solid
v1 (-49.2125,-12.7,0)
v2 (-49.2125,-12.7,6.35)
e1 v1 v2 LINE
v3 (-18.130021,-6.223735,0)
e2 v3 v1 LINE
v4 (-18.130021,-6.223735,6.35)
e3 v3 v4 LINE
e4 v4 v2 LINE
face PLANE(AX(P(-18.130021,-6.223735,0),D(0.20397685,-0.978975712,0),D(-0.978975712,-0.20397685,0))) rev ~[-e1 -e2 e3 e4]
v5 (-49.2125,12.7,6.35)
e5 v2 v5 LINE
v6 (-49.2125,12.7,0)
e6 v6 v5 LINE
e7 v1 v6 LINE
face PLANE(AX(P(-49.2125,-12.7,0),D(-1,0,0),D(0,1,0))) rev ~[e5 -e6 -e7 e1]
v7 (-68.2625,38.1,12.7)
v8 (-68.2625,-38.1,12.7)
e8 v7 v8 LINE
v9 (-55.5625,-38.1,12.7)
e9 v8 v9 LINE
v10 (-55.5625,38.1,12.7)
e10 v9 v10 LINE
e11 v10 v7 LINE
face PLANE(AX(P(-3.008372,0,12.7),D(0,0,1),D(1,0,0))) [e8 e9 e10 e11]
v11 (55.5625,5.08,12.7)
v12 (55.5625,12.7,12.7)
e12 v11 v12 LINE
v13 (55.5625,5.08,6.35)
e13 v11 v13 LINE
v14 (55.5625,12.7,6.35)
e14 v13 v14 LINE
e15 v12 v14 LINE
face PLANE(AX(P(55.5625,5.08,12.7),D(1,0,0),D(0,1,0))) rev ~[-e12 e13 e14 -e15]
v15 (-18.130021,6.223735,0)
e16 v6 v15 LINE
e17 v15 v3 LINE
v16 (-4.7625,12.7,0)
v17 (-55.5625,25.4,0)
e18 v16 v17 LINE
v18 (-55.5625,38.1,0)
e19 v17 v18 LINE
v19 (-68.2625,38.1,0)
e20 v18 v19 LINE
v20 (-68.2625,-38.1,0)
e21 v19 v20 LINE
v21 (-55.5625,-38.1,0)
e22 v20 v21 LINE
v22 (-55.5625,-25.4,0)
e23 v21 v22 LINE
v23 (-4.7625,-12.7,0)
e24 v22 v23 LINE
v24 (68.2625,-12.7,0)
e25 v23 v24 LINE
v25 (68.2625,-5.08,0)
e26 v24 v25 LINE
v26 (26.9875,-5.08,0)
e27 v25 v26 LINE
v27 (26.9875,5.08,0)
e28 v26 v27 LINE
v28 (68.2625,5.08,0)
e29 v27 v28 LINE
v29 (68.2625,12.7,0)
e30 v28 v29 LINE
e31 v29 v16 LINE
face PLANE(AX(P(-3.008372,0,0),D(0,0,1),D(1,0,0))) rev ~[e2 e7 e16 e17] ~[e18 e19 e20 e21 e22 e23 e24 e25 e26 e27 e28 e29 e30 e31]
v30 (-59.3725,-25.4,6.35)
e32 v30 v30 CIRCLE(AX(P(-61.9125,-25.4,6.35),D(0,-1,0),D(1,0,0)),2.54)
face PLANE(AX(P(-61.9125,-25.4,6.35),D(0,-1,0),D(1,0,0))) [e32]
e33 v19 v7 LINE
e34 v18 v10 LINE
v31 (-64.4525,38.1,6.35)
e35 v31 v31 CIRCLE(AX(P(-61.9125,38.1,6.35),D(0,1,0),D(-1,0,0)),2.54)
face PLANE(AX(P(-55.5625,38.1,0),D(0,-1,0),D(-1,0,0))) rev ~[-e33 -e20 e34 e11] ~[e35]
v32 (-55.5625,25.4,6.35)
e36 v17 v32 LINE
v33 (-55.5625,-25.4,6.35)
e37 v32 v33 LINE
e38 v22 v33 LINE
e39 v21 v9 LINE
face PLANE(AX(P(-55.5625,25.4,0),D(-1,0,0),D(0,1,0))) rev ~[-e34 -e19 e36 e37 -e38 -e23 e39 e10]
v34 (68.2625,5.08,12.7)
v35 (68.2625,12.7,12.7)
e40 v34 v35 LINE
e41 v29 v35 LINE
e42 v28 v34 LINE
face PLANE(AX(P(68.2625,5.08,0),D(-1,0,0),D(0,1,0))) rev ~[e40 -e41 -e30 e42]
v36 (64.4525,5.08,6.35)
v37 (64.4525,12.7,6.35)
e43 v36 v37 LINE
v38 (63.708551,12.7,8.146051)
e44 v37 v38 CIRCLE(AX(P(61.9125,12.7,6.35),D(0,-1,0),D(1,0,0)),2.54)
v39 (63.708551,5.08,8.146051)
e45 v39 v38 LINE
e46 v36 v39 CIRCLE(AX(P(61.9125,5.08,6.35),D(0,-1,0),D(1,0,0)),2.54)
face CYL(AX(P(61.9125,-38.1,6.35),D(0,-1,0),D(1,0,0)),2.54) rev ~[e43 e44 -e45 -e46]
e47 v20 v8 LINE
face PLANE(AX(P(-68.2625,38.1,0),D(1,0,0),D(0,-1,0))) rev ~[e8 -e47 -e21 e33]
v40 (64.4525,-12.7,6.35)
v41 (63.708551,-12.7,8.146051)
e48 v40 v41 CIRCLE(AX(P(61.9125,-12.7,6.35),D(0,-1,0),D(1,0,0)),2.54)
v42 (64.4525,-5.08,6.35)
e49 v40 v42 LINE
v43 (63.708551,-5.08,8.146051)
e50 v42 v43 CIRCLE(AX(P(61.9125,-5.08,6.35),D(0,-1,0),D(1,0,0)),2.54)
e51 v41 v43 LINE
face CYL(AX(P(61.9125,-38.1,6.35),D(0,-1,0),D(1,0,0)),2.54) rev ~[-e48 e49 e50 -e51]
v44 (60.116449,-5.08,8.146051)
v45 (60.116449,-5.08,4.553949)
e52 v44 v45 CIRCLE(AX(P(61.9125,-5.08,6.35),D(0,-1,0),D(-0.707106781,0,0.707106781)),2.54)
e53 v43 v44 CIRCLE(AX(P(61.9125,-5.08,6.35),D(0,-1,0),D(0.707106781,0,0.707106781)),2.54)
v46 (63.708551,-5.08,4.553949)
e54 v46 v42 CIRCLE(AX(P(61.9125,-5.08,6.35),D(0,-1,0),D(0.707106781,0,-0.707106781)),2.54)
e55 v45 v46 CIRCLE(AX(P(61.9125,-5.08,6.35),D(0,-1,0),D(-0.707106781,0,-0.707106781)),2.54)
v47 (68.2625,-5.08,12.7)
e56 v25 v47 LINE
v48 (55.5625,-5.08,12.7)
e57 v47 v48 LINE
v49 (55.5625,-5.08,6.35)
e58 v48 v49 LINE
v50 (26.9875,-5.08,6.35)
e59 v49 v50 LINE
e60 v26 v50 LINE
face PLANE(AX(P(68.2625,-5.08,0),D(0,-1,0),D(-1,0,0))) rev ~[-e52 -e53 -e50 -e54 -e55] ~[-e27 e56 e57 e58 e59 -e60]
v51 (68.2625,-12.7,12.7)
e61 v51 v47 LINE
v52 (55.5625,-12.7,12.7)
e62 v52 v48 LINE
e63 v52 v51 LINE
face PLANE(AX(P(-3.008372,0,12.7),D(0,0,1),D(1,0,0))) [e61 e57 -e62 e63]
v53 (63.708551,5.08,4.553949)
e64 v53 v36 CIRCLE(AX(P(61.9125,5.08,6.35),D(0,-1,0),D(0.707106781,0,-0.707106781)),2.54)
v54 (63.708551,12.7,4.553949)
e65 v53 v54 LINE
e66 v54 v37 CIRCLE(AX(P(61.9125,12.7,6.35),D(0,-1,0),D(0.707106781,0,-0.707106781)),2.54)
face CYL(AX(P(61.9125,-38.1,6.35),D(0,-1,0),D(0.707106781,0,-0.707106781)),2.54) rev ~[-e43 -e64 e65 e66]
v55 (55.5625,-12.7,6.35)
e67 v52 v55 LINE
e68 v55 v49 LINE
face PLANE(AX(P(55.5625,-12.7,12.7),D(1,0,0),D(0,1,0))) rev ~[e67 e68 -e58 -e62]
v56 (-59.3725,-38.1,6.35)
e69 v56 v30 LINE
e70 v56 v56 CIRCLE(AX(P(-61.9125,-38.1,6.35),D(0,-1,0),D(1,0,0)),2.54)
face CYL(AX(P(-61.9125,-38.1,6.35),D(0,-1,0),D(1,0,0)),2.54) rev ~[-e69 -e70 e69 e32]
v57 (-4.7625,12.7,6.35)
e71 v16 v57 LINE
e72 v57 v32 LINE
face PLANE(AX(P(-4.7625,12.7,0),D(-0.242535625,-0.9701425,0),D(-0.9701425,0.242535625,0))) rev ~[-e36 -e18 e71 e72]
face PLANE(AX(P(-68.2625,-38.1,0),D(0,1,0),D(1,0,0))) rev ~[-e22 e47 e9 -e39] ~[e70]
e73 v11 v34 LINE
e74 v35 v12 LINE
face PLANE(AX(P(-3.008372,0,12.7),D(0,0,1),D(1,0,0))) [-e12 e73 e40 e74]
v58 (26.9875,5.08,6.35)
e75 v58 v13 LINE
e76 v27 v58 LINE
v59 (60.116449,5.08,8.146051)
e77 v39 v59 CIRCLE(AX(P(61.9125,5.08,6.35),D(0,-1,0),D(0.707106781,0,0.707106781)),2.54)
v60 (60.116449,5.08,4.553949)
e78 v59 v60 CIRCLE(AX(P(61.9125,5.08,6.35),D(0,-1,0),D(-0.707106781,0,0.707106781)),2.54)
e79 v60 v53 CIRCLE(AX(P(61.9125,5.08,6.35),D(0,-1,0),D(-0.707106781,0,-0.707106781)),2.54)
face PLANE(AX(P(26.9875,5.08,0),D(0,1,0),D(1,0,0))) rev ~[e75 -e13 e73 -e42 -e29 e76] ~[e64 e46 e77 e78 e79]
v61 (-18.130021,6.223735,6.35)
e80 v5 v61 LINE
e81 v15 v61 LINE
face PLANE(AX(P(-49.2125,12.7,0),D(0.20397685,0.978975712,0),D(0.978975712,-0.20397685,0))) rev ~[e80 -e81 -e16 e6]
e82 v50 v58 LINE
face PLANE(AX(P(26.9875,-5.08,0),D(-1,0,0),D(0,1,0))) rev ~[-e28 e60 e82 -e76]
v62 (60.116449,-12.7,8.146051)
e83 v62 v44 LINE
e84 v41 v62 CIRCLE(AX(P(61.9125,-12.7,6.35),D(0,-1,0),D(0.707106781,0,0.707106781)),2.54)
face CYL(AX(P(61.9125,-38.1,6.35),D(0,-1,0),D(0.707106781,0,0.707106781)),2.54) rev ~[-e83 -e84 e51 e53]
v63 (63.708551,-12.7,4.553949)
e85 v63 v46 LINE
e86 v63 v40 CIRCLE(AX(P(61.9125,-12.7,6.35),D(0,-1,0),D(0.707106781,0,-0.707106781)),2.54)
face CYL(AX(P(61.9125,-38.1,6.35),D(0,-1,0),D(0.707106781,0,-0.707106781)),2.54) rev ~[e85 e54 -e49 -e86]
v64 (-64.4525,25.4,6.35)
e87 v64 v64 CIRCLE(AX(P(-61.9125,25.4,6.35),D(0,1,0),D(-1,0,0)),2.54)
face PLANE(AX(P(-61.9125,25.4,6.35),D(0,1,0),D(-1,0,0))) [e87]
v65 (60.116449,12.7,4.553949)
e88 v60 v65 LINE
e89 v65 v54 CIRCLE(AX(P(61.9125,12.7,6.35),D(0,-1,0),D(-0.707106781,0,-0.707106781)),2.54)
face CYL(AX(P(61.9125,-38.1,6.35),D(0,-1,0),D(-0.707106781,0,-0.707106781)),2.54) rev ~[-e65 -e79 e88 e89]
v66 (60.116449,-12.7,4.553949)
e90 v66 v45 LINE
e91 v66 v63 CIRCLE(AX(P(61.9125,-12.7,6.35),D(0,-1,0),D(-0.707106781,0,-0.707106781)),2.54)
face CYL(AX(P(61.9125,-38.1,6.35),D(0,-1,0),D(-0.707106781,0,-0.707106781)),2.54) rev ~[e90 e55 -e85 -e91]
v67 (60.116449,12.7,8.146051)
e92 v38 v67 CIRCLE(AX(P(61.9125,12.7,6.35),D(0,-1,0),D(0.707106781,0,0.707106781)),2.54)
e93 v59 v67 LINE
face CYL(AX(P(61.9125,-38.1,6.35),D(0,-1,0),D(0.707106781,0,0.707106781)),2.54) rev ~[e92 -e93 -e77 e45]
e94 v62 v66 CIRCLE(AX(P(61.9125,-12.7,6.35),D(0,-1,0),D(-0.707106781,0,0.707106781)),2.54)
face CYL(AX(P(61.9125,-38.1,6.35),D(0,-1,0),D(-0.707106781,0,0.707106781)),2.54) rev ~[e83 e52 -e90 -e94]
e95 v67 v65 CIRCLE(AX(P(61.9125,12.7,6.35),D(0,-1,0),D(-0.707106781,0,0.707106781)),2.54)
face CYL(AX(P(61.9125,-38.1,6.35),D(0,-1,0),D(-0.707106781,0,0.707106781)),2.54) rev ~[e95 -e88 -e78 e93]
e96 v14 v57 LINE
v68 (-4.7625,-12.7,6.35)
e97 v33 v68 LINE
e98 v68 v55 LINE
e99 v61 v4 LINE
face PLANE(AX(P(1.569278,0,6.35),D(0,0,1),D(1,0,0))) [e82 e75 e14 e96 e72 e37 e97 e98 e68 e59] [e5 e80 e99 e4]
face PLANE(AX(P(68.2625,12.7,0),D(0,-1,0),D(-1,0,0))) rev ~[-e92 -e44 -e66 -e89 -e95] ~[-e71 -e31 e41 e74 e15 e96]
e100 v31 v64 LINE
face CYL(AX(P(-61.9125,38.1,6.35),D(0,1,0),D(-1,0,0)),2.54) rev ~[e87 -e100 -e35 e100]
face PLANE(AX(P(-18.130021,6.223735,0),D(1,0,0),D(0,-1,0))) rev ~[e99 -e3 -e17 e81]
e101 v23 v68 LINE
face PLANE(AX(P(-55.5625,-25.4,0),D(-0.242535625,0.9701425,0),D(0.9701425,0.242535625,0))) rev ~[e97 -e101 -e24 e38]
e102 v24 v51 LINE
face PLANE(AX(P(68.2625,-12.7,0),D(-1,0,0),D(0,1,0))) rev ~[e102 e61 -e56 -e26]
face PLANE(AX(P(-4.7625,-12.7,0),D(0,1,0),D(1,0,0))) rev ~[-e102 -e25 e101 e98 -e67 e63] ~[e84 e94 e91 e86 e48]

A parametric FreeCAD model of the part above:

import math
import FreeCAD as App
import Part
import Sketcher
from FreeCAD import Vector
Q = App.Units.Quantity


def add_polygon(sketch, points):
    """Adds a closed chain of lines whose ends are joined by coincident constraints."""
    first, n = sketch.GeometryCount, len(points)
    for a, b in zip(points, points[1:] + points[:1]):
        sketch.addGeometry(Part.LineSegment(App.Vector(*a, 0), App.Vector(*b, 0)), False)
    for i in range(n):
        sketch.addConstraint(Sketcher.Constraint("Coincident", first + i, 2, first + (i + 1) % n, 1))

doc = App.newDocument("Part")
body = doc.addObject("PartDesign::Body", "Body")

# Sketch on XY plane
sketch1 = body.newObject("Sketcher::SketchObject", "Sketch")
sketch1.AttachmentSupport = (doc.getObject("XY_Plane"), [""])
sketch1.MapMode = "FlatFace"
add_polygon(sketch1, [(-68, 38), (-68, -38), (-56, -38), (-56, -25), (-5, -13), (68, -13), (68, -5), (27, -5), (27, 5), (68, 5), (68, 13), (-5, 13), (-56, 25), (-56, 38)])  # lines 0-13
add_polygon(sketch1, [(-18, -6), (-49, -13), (-49, 13), (-18, 6)])  # lines 14-17
sketch1.addConstraint([
    Sketcher.Constraint("Vertical", 0),
    Sketcher.Constraint("Horizontal", 1),
    Sketcher.Constraint("Vertical", 2),
    Sketcher.Constraint("Horizontal", 4),
    Sketcher.Constraint("Vertical", 5),
    Sketcher.Constraint("Horizontal", 6),
    Sketcher.Constraint("Vertical", 7),
    Sketcher.Constraint("Horizontal", 8),
    Sketcher.Constraint("Vertical", 9),
    Sketcher.Constraint("Horizontal", 10),
    Sketcher.Constraint("Vertical", 12),
    Sketcher.Constraint("Horizontal", 13),
    Sketcher.Constraint("Vertical", 15),
    Sketcher.Constraint("Vertical", 17),
    Sketcher.Constraint("Symmetric", 5, 2, 8, 2, -1),
    Sketcher.Constraint("Symmetric", 3, 2, 10, 2, -1),
    Sketcher.Constraint("Symmetric", 2, 2, 11, 2, -1),
    Sketcher.Constraint("Horizontal", 4, 2, 14, 2),
    Sketcher.Constraint("Horizontal", 10, 2, 15, 2),
    Sketcher.Constraint("Equal", 13, 2),
    Sketcher.Constraint("Equal", 2, 12),
    Sketcher.Constraint("Equal", 14, 16),
    Sketcher.Constraint("DistanceY", 0, 2, 0, 1, Q("3 in")),
    Sketcher.Constraint("DistanceY", 15, 1, 15, 2, Q("1 in")),
    Sketcher.Constraint("DistanceX", 1, 1, 1, 2, Q("0.5 in")),
    Sketcher.Constraint("DistanceY", 5, 1, 5, 2, Q("0.3 in")),
    Sketcher.Constraint("DistanceX", 2, 2, 3, 2, Q("2 in")),
    Sketcher.Constraint("Distance", 14, Q("1.25 in")),
    Sketcher.Constraint("DistanceX", 4, 1, 4, 2, Q("2.875 in")),
    Sketcher.Constraint("DistanceX", 6, 2, 6, 1, Q("1.625 in")),
    Sketcher.Constraint("DistanceX", 2, 2, 14, 2, Q("0.25 in")),
    Sketcher.Constraint("DistanceX", 0, 2, -1, 1, Q("2.6875 in")),
    Sketcher.Constraint("DistanceY", 17, 2, 17, 1, 12.44747),
])
pad1 = body.newObject("PartDesign::Pad", "Pad")
pad1.Profile = sketch1
pad1.Length = Q("0.5 in")

# Sketch on XY plane
sketch2 = body.newObject("Sketcher::SketchObject", "Sketch001")
sketch2.AttachmentSupport = (doc.getObject("XY_Plane"), [""])
sketch2.MapMode = "FlatFace"
sketch2.AttachmentOffset = App.Placement(Vector(0, 0, 0.5 * 25.4), App.Rotation())
add_polygon(sketch2, [(-56, 25), (-56, -25), (-5, -13), (56, -13), (56, -5), (27, -5), (27, 5), (56, 5), (56, 13), (-5, 13)])  # lines 0-9
add_polygon(sketch2, [(-18, -6), (-49, -13), (-49, 13), (-18, 6)])  # lines 10-13
sketch2.addConstraint([
    Sketcher.Constraint("Vertical", 0),
    Sketcher.Constraint("Horizontal", 2),
    Sketcher.Constraint("Vertical", 3),
    Sketcher.Constraint("Horizontal", 4),
    Sketcher.Constraint("Vertical", 5),
    Sketcher.Constraint("Horizontal", 6),
    Sketcher.Constraint("Vertical", 7),
    Sketcher.Constraint("Horizontal", 8),
    Sketcher.Constraint("Vertical", 11),
    Sketcher.Constraint("Vertical", 13),
    Sketcher.Constraint("Symmetric", 3, 2, 6, 2, -1),
    Sketcher.Constraint("Symmetric", 1, 2, 8, 2, -1),
    Sketcher.Constraint("Horizontal", 2, 2, 10, 2),
    Sketcher.Constraint("Horizontal", 8, 2, 11, 2),
    Sketcher.Constraint("Equal", 1, 9),
    Sketcher.Constraint("Equal", 10, 12),
    Sketcher.Constraint("DistanceY", 0, 2, 0, 1, Q("2 in")),
    Sketcher.Constraint("DistanceY", 11, 1, 11, 2, Q("1 in")),
    Sketcher.Constraint("DistanceY", 3, 1, 3, 2, Q("0.3 in")),
    Sketcher.Constraint("DistanceX", 0, 2, 1, 2, Q("2 in")),
    Sketcher.Constraint("DistanceX", 10, 2, 4, 2, Q("3 in")),
    Sketcher.Constraint("Distance", 10, Q("1.25 in")),
    Sketcher.Constraint("DistanceX", 2, 1, 2, 2, Q("2.375 in")),
    Sketcher.Constraint("DistanceX", 4, 2, 4, 1, Q("1.125 in")),
    Sketcher.Constraint("DistanceX", 0, 2, -1, 1, Q("2.1875 in")),
    Sketcher.Constraint("DistanceY", 13, 2, 13, 1, 12.44747),
])
pocket1 = body.newObject("PartDesign::Pocket", "Pocket")
pocket1.Profile = sketch2
pocket1.Length = Q("0.25 in")

# Sketch on XZ plane
sketch3 = body.newObject("Sketcher::SketchObject", "Sketch002")
sketch3.AttachmentSupport = (doc.getObject("XZ_Plane"), [""])
sketch3.MapMode = "FlatFace"
sketch3.AttachmentOffset = App.Placement(Vector(0, 0, 1.5 * 25.4), App.Rotation())
sketch3.addGeometry(Part.Circle(Vector(-61.9, 6.3, 0), Vector(0, 0, 1), 2.5), False)
sketch3.addConstraint([
    Sketcher.Constraint("Diameter", 0, Q("0.2 in")),
    Sketcher.Constraint("DistanceY", -1, 1, 0, 3, Q("0.25 in")),
    Sketcher.Constraint("DistanceX", 0, 3, -1, 1, Q("2.4375 in")),
])
pocket2 = body.newObject("PartDesign::Pocket", "Pocket001")
pocket2.Profile = sketch3
pocket2.Length = Q("0.5 in")

# Sketch on XZ plane
sketch4 = body.newObject("Sketcher::SketchObject", "Sketch003")
sketch4.AttachmentSupport = (doc.getObject("XZ_Plane"), [""])
sketch4.MapMode = "FlatFace"
sketch4.AttachmentOffset = App.Placement(Vector(0, 0, 1.5 * 25.4), App.Rotation())
sketch4.addGeometry([
    Part.ArcOfCircle(Part.Circle(Vector(61.9, 6.3, 0), Vector(0, 0, 1), 2.5), math.radians(-135), math.radians(-45)),  # 0
    Part.ArcOfCircle(Part.Circle(Vector(61.9, 6.3, 0), Vector(0, 0, 1), 2.5), math.radians(-45), math.radians(0)),  # 1
    Part.ArcOfCircle(Part.Circle(Vector(61.9, 6.3, 0), Vector(0, 0, 1), 2.5), math.radians(0), math.radians(45)),  # 2
    Part.ArcOfCircle(Part.Circle(Vector(61.9, 6.3, 0), Vector(0, 0, 1), 2.5), math.radians(45), math.radians(135)),  # 3
    Part.ArcOfCircle(Part.Circle(Vector(61.9, 6.3, 0), Vector(0, 0, 1), 2.5), math.radians(135), math.radians(225)),  # 4
], False)
sketch4.addConstraint([
    Sketcher.Constraint("Tangent", 0, 2, 1, 1),
    Sketcher.Constraint("Tangent", 1, 2, 2, 1),
    Sketcher.Constraint("Tangent", 2, 2, 3, 1),
    Sketcher.Constraint("Tangent", 3, 2, 4, 1),
    Sketcher.Constraint("Tangent", 4, 2, 0, 1),
    Sketcher.Constraint("Coincident", 2, 3, 0, 3),
    Sketcher.Constraint("Horizontal", 4, 3, 1, 2),
    Sketcher.Constraint("Horizontal", 2, 2, 3, 2),
    Sketcher.Constraint("Horizontal", 0, 2, 4, 2),
    Sketcher.Constraint("Vertical", 0, 2, 2, 2),
    Sketcher.Constraint("Radius", 0, Q("0.1 in")),
    Sketcher.Constraint("DistanceY", -1, 1, 0, 3, Q("0.25 in")),
    Sketcher.Constraint("DistanceX", -1, 1, 0, 3, Q("2.4375 in")),
    Sketcher.Constraint("DistanceX", -1, 1, 0, 2, 63.708551),
])
pocket3 = body.newObject("PartDesign::Pocket", "Pocket002")
pocket3.Profile = sketch4
pocket3.Type = "ThroughAll"

# Sketch on XZ plane
sketch5 = body.newObject("Sketcher::SketchObject", "Sketch004")
sketch5.AttachmentSupport = (doc.getObject("XZ_Plane"), [""])
sketch5.MapMode = "FlatFace"
sketch5.AttachmentOffset = App.Placement(Vector(0, 0, -1.5 * 25.4), App.Rotation())
sketch5.addGeometry(Part.Circle(Vector(-61.9, 6.3, 0), Vector(0, 0, 1), 2.5), False)
sketch5.addConstraint([
    Sketcher.Constraint("Diameter", 0, Q("0.2 in")),
    Sketcher.Constraint("DistanceY", -1, 1, 0, 3, Q("0.25 in")),
    Sketcher.Constraint("DistanceX", 0, 3, -1, 1, Q("2.4375 in")),
])
pocket4 = body.newObject("PartDesign::Pocket", "Pocket003")
pocket4.Profile = sketch5
pocket4.Length = Q("0.5 in")
pocket4.Reversed = True

doc.recompute()
